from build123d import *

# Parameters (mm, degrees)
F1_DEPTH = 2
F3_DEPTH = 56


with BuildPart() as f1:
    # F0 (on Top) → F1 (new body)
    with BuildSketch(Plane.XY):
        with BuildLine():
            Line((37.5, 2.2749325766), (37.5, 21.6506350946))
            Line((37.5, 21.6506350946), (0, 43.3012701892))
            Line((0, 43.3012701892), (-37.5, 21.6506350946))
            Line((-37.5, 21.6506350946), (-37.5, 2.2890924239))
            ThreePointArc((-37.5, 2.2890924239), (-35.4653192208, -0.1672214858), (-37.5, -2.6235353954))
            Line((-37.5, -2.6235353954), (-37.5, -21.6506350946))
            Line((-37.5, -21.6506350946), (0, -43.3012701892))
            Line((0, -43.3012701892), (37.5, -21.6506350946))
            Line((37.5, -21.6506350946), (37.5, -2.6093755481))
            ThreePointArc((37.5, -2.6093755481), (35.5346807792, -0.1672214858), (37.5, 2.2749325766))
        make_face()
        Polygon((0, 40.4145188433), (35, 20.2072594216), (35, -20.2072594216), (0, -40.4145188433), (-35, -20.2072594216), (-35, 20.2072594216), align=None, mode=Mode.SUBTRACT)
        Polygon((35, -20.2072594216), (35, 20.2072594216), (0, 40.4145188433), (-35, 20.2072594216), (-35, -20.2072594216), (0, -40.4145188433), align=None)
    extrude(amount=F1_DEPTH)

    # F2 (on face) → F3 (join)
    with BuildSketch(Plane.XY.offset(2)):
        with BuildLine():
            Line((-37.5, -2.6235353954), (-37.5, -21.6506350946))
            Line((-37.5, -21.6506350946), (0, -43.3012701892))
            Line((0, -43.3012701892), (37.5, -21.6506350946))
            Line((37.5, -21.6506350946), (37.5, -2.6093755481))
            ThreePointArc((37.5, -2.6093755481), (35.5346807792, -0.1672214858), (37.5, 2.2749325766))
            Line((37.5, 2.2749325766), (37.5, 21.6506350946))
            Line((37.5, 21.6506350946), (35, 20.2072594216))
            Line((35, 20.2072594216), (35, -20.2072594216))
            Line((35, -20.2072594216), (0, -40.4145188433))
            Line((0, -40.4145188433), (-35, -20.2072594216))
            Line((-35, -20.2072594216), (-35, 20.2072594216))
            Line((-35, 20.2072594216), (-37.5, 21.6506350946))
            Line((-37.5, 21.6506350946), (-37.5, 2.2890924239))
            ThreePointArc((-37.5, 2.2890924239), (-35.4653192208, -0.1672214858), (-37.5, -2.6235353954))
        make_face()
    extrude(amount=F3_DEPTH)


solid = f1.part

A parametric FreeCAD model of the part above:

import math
import FreeCAD as App
import Part
import Sketcher
from FreeCAD import Vector
Q = App.Units.Quantity

doc = App.newDocument("Part")
body = doc.addObject("PartDesign::Body", "Body")

# Sketch on XY plane
sketch1 = body.newObject("Sketcher::SketchObject", "Sketch")
sketch1.AttachmentSupport = (doc.getObject("XY_Plane"), [""])
sketch1.MapMode = "FlatFace"
sketch1.addGeometry([
    Part.LineSegment(Vector(37.5, 2.274933, 0), Vector(37.5, 21.650635, 0)),  # 0
    Part.LineSegment(Vector(37.5, 21.650635, 0), Vector(0, 43.30127, 0)),  # 1
    Part.LineSegment(Vector(0, 43.30127, 0), Vector(-37.5, 21.650635, 0)),  # 2
    Part.LineSegment(Vector(-37.5, 21.650635, 0), Vector(-37.5, 2.289092, 0)),  # 3
    Part.ArcOfCircle(Part.Circle(Vector(-37.965319, -0.167221, 0), Vector(0, 0, 1), 2.5), math.radians(-79.273114), math.radians(79.273114)),  # 4
    Part.LineSegment(Vector(-37.5, -2.623535, 0), Vector(-37.5, -21.650635, 0)),  # 5
    Part.LineSegment(Vector(-37.5, -21.650635, 0), Vector(0, -43.30127, 0)),  # 6
    Part.LineSegment(Vector(0, -43.30127, 0), Vector(37.5, -21.650635, 0)),  # 7
    Part.LineSegment(Vector(37.5, -21.650635, 0), Vector(37.5, -2.609376, 0)),  # 8
    Part.ArcOfCircle(Part.Circle(Vector(38.034681, -0.167221, 0), Vector(0, 0, 1), 2.5), math.radians(102.349377), math.radians(257.650623)),  # 9
], False)
sketch1.addConstraint([
    Sketcher.Constraint("Coincident", 0, 2, 1, 1),
    Sketcher.Constraint("Coincident", 1, 2, 2, 1),
    Sketcher.Constraint("Coincident", 2, 2, 3, 1),
    Sketcher.Constraint("Coincident", 3, 2, 4, 2),
    Sketcher.Constraint("Coincident", 4, 1, 5, 1),
    Sketcher.Constraint("Coincident", 5, 2, 6, 1),
    Sketcher.Constraint("Coincident", 6, 2, 7, 1),
    Sketcher.Constraint("Coincident", 7, 2, 8, 1),
    Sketcher.Constraint("Coincident", 8, 2, 9, 2),
    Sketcher.Constraint("Coincident", 9, 1, 0, 1),
    Sketcher.Constraint("Vertical", 0),
    Sketcher.Constraint("Vertical", 3),
    Sketcher.Constraint("Vertical", 5),
    Sketcher.Constraint("Vertical", 8),
    Sketcher.Constraint("Equal", 4, 9),
    Sketcher.Constraint("Symmetric", 0, 2, 5, 2, -1, 1),
    Sketcher.Constraint("Symmetric", 1, 2, 6, 2, -1, 1),
    Sketcher.Constraint("Symmetric", 2, 2, 7, 2, -1, 1),
    Sketcher.Constraint("Symmetric", 0, 2, 2, 2, -2),
    Sketcher.Constraint("PointOnObject", 1, 2, -2),
    Sketcher.Constraint("Horizontal", 4, 3, 9, 3),
    Sketcher.Constraint("Radius", 4, 2.5),
    Sketcher.Constraint("Angle", 1, Q("150 deg")),
    Sketcher.Constraint("DistanceX", 4, 3, 9, 3, 76.0),
    Sketcher.Constraint("DistanceX", 2, 2, 0, 2, 75.0),
    Sketcher.Constraint("DistanceY", 5, 2, 5, 1, 19.0271),
    Sketcher.Constraint("DistanceY", 8, 1, 8, 2, 19.04126),
    Sketcher.Constraint("DistanceY", 0, 1, 0, 2, 19.375703),
])
pad1 = body.newObject("PartDesign::Pad", "Pad")
pad1.Profile = sketch1
pad1.Length = 2

# Sketch on XY plane
sketch2 = body.newObject("Sketcher::SketchObject", "Sketch001")
sketch2.AttachmentSupport = (doc.getObject("XY_Plane"), [""])
sketch2.MapMode = "FlatFace"
sketch2.AttachmentOffset = App.Placement(Vector(0, 0, 2), App.Rotation())
sketch2.addGeometry([
    Part.LineSegment(Vector(-37.5, -2.623535, 0), Vector(-37.5, -21.650635, 0)),  # 0
    Part.LineSegment(Vector(-37.5, -21.650635, 0), Vector(0, -43.30127, 0)),  # 1
    Part.LineSegment(Vector(0, -43.30127, 0), Vector(37.5, -21.650635, 0)),  # 2
    Part.LineSegment(Vector(37.5, -21.650635, 0), Vector(37.5, -2.609376, 0)),  # 3
    Part.ArcOfCircle(Part.Circle(Vector(38.034681, -0.167221, 0), Vector(0, 0, 1), 2.5), math.radians(102.349377), math.radians(257.650623)),  # 4
    Part.LineSegment(Vector(37.5, 2.274933, 0), Vector(37.5, 21.650635, 0)),  # 5
    Part.LineSegment(Vector(37.5, 21.650635, 0), Vector(35, 20.207259, 0)),  # 6
    Part.LineSegment(Vector(35, 20.207259, 0), Vector(35, -20.207259, 0)),  # 7
    Part.LineSegment(Vector(35, -20.207259, 0), Vector(0, -40.414519, 0)),  # 8
    Part.LineSegment(Vector(0, -40.414519, 0), Vector(-35, -20.207259, 0)),  # 9
    Part.LineSegment(Vector(-35, -20.207259, 0), Vector(-35, 20.207259, 0)),  # 10
    Part.LineSegment(Vector(-35, 20.207259, 0), Vector(-37.5, 21.650635, 0)),  # 11
    Part.LineSegment(Vector(-37.5, 21.650635, 0), Vector(-37.5, 2.289092, 0)),  # 12
    Part.ArcOfCircle(Part.Circle(Vector(-37.965319, -0.167221, 0), Vector(0, 0, 1), 2.5), math.radians(-79.273114), math.radians(79.273114)),  # 13
], False)
sketch2.addConstraint([
    Sketcher.Constraint("Coincident", 0, 2, 1, 1),
    Sketcher.Constraint("Coincident", 1, 2, 2, 1),
    Sketcher.Constraint("Coincident", 2, 2, 3, 1),
    Sketcher.Constraint("Coincident", 3, 2, 4, 2),
    Sketcher.Constraint("Coincident", 4, 1, 5, 1),
    Sketcher.Constraint("Coincident", 5, 2, 6, 1),
    Sketcher.Constraint("Coincident", 6, 2, 7, 1),
    Sketcher.Constraint("Coincident", 7, 2, 8, 1),
    Sketcher.Constraint("Coincident", 8, 2, 9, 1),
    Sketcher.Constraint("Coincident", 9, 2, 10, 1),
    Sketcher.Constraint("Coincident", 10, 2, 11, 1),
    Sketcher.Constraint("Coincident", 11, 2, 12, 1),
    Sketcher.Constraint("Coincident", 12, 2, 13, 2),
    Sketcher.Constraint("Coincident", 13, 1, 0, 1),
    Sketcher.Constraint("Vertical", 0),
    Sketcher.Constraint("Vertical", 3),
    Sketcher.Constraint("Vertical", 5),
    Sketcher.Constraint("Vertical", 7),
    Sketcher.Constraint("Vertical", 10),
    Sketcher.Constraint("Vertical", 12),
    Sketcher.Constraint("Equal", 4, 13),
    Sketcher.Constraint("Symmetric", 0, 2, 5, 2, -1, 1),
    Sketcher.Constraint("Symmetric", 6, 2, 9, 2, -1, 1),
    Sketcher.Constraint("Symmetric", 2, 2, 11, 2, -1, 1),
    Sketcher.Constraint("Symmetric", 0, 2, 2, 2, -2),
    Sketcher.Constraint("PointOnObject", 1, 2, -2),
    Sketcher.Constraint("PointOnObject", 8, 2, -2),
    Sketcher.Constraint("Parallel", 2, 6),
    Sketcher.Constraint("Parallel", 6, 8),
    Sketcher.Constraint("Parallel", 1, 9),
    Sketcher.Constraint("Parallel", 9, 11),
    Sketcher.Constraint("Horizontal", 4, 3, 13, 3),
    Sketcher.Constraint("Radius", 4, 2.5),
    Sketcher.Constraint("Angle", 1, Q("-30 deg")),
    Sketcher.Constraint("DistanceX", -1, 1, 6, 2, 35.0),
    Sketcher.Constraint("DistanceX", 13, 3, 4, 3, 76.0),
    Sketcher.Constraint("DistanceX", 0, 2, 2, 2, 75.0),
    Sketcher.Constraint("DistanceY", 0, 2, 0, 1, 19.0271),
    Sketcher.Constraint("DistanceY", 3, 1, 3, 2, 19.04126),
    Sketcher.Constraint("DistanceY", 7, 2, 7, 1, 40.414519),
])
pad2 = body.newObject("PartDesign::Pad", "Pad001")
pad2.Profile = sketch2
pad2.Length = 56

doc.recompute()
